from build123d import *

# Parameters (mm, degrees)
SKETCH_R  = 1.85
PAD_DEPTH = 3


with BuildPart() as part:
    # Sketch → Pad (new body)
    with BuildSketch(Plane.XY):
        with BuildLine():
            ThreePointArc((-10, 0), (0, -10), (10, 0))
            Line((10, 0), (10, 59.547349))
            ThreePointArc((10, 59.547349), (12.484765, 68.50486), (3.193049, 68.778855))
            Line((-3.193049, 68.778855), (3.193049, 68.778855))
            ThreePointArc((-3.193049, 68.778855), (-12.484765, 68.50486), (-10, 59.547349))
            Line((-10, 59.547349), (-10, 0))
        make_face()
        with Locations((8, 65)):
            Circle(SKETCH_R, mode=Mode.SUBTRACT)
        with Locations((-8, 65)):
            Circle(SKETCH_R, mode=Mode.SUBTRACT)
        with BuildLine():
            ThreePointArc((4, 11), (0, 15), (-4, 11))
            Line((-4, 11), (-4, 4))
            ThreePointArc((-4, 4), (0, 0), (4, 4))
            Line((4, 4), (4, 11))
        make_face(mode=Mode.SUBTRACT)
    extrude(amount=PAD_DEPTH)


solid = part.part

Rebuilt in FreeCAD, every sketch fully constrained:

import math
import FreeCAD as App
import Part
import Sketcher
from FreeCAD import Vector
Q = App.Units.Quantity

doc = App.newDocument("Part")
body = doc.addObject("PartDesign::Body", "Body")

sketch1 = body.newObject("Sketcher::SketchObject", "Sketch")
sketch1.AttachmentSupport = (doc.getObject("XY_Plane"), [""])
sketch1.MapMode = "FlatFace"
sketch1.addGeometry([
    Part.ArcOfCircle(Part.Circle(Vector(0, 0, 0), Vector(0, 0, 1), 10), math.radians(180), math.radians(360)),
    Part.LineSegment(Vector(10, 0, 0), Vector(10, 59.5, 0)),
    Part.ArcOfCircle(Part.Circle(Vector(7.7, 65, 0), Vector(0, 0, 1), 5.9), math.radians(-67), math.radians(140)),
    Part.LineSegment(Vector(3.2, 68.8, 0), Vector(-3.2, 68.8, 0)),
    Part.ArcOfCircle(Part.Circle(Vector(-7.7, 65, 0), Vector(0, 0, 1), 5.9), math.radians(40), math.radians(247)),
    Part.LineSegment(Vector(-10, 59.5, 0), Vector(-10, 0, 0)),
    Part.ArcOfCircle(Part.Circle(Vector(0, 11, 0), Vector(0, 0, 1), 4), math.radians(0), math.radians(180)),
    Part.LineSegment(Vector(4, 11, 0), Vector(4, 4, 0)),
    Part.ArcOfCircle(Part.Circle(Vector(0, 4, 0), Vector(0, 0, 1), 4), math.radians(180), math.radians(360)),
    Part.LineSegment(Vector(-4, 4, 0), Vector(-4, 11, 0)),
    Part.Circle(Vector(-8, 65, 0), Vector(0, 0, 1), 1.9),
    Part.Circle(Vector(8, 65, 0), Vector(0, 0, 1), 1.9),
], False)
sketch1.addConstraint([
    Sketcher.Constraint("Tangent", 0, 2, 1, 1),
    Sketcher.Constraint("Coincident", 1, 2, 2, 1),
    Sketcher.Constraint("Coincident", 2, 2, 3, 1),
    Sketcher.Constraint("Coincident", 3, 2, 4, 1),
    Sketcher.Constraint("Coincident", 4, 2, 5, 1),
    Sketcher.Constraint("Tangent", 5, 2, 0, 1),
    Sketcher.Constraint("Tangent", 6, 1, 7, 1),
    Sketcher.Constraint("Tangent", 7, 2, 8, 2),
    Sketcher.Constraint("Tangent", 8, 1, 9, 1),
    Sketcher.Constraint("Tangent", 9, 2, 6, 2),
    Sketcher.Constraint("Vertical", 1),
    Sketcher.Constraint("Horizontal", 3),
    Sketcher.Constraint("Vertical", 5),
    Sketcher.Constraint("Vertical", 7),
    Sketcher.Constraint("Vertical", 9),
    Sketcher.Constraint("Coincident", 0, 3, -1, 1),
    Sketcher.Constraint("Equal", 2, 4),
    Sketcher.Constraint("Equal", 10, 11),
    Sketcher.Constraint("Symmetric", 2, 3, 4, 3, -2),
    Sketcher.Constraint("Symmetric", 10, 3, 11, 3, -2),
    Sketcher.Constraint("PointOnObject", 6, 3, -2),
    Sketcher.Constraint("Horizontal", 4, 3, 10, 3),
    Sketcher.Constraint("Radius", 0, Q("10 mm")),
    Sketcher.Constraint("Radius", 6, Q("4 mm")),
    Sketcher.Constraint("Diameter", 10, Q("3.7 mm")),
    Sketcher.Constraint("DistanceY", 7, 2, 7, 1, Q("7 mm")),
    Sketcher.Constraint("DistanceY", -1, 1, 2, 3, Q("65 mm")),
    Sketcher.Constraint("DistanceY", -1, 1, 6, 3, Q("11 mm")),
    Sketcher.Constraint("DistanceX", 10, 3, -1, 1, Q("8 mm")),
    Sketcher.Constraint("Radius", 2, Q("5.905711 mm")),
    Sketcher.Constraint("DistanceY", 1, 1, 1, 2, Q("59.547349 mm")),
    Sketcher.Constraint("DistanceX", 3, 2, 3, 1, Q("6.386098 mm")),
])
pad1 = body.newObject("PartDesign::Pad", "Pad")
pad1.Profile = sketch1
pad1.Length = 3

doc.recompute()
